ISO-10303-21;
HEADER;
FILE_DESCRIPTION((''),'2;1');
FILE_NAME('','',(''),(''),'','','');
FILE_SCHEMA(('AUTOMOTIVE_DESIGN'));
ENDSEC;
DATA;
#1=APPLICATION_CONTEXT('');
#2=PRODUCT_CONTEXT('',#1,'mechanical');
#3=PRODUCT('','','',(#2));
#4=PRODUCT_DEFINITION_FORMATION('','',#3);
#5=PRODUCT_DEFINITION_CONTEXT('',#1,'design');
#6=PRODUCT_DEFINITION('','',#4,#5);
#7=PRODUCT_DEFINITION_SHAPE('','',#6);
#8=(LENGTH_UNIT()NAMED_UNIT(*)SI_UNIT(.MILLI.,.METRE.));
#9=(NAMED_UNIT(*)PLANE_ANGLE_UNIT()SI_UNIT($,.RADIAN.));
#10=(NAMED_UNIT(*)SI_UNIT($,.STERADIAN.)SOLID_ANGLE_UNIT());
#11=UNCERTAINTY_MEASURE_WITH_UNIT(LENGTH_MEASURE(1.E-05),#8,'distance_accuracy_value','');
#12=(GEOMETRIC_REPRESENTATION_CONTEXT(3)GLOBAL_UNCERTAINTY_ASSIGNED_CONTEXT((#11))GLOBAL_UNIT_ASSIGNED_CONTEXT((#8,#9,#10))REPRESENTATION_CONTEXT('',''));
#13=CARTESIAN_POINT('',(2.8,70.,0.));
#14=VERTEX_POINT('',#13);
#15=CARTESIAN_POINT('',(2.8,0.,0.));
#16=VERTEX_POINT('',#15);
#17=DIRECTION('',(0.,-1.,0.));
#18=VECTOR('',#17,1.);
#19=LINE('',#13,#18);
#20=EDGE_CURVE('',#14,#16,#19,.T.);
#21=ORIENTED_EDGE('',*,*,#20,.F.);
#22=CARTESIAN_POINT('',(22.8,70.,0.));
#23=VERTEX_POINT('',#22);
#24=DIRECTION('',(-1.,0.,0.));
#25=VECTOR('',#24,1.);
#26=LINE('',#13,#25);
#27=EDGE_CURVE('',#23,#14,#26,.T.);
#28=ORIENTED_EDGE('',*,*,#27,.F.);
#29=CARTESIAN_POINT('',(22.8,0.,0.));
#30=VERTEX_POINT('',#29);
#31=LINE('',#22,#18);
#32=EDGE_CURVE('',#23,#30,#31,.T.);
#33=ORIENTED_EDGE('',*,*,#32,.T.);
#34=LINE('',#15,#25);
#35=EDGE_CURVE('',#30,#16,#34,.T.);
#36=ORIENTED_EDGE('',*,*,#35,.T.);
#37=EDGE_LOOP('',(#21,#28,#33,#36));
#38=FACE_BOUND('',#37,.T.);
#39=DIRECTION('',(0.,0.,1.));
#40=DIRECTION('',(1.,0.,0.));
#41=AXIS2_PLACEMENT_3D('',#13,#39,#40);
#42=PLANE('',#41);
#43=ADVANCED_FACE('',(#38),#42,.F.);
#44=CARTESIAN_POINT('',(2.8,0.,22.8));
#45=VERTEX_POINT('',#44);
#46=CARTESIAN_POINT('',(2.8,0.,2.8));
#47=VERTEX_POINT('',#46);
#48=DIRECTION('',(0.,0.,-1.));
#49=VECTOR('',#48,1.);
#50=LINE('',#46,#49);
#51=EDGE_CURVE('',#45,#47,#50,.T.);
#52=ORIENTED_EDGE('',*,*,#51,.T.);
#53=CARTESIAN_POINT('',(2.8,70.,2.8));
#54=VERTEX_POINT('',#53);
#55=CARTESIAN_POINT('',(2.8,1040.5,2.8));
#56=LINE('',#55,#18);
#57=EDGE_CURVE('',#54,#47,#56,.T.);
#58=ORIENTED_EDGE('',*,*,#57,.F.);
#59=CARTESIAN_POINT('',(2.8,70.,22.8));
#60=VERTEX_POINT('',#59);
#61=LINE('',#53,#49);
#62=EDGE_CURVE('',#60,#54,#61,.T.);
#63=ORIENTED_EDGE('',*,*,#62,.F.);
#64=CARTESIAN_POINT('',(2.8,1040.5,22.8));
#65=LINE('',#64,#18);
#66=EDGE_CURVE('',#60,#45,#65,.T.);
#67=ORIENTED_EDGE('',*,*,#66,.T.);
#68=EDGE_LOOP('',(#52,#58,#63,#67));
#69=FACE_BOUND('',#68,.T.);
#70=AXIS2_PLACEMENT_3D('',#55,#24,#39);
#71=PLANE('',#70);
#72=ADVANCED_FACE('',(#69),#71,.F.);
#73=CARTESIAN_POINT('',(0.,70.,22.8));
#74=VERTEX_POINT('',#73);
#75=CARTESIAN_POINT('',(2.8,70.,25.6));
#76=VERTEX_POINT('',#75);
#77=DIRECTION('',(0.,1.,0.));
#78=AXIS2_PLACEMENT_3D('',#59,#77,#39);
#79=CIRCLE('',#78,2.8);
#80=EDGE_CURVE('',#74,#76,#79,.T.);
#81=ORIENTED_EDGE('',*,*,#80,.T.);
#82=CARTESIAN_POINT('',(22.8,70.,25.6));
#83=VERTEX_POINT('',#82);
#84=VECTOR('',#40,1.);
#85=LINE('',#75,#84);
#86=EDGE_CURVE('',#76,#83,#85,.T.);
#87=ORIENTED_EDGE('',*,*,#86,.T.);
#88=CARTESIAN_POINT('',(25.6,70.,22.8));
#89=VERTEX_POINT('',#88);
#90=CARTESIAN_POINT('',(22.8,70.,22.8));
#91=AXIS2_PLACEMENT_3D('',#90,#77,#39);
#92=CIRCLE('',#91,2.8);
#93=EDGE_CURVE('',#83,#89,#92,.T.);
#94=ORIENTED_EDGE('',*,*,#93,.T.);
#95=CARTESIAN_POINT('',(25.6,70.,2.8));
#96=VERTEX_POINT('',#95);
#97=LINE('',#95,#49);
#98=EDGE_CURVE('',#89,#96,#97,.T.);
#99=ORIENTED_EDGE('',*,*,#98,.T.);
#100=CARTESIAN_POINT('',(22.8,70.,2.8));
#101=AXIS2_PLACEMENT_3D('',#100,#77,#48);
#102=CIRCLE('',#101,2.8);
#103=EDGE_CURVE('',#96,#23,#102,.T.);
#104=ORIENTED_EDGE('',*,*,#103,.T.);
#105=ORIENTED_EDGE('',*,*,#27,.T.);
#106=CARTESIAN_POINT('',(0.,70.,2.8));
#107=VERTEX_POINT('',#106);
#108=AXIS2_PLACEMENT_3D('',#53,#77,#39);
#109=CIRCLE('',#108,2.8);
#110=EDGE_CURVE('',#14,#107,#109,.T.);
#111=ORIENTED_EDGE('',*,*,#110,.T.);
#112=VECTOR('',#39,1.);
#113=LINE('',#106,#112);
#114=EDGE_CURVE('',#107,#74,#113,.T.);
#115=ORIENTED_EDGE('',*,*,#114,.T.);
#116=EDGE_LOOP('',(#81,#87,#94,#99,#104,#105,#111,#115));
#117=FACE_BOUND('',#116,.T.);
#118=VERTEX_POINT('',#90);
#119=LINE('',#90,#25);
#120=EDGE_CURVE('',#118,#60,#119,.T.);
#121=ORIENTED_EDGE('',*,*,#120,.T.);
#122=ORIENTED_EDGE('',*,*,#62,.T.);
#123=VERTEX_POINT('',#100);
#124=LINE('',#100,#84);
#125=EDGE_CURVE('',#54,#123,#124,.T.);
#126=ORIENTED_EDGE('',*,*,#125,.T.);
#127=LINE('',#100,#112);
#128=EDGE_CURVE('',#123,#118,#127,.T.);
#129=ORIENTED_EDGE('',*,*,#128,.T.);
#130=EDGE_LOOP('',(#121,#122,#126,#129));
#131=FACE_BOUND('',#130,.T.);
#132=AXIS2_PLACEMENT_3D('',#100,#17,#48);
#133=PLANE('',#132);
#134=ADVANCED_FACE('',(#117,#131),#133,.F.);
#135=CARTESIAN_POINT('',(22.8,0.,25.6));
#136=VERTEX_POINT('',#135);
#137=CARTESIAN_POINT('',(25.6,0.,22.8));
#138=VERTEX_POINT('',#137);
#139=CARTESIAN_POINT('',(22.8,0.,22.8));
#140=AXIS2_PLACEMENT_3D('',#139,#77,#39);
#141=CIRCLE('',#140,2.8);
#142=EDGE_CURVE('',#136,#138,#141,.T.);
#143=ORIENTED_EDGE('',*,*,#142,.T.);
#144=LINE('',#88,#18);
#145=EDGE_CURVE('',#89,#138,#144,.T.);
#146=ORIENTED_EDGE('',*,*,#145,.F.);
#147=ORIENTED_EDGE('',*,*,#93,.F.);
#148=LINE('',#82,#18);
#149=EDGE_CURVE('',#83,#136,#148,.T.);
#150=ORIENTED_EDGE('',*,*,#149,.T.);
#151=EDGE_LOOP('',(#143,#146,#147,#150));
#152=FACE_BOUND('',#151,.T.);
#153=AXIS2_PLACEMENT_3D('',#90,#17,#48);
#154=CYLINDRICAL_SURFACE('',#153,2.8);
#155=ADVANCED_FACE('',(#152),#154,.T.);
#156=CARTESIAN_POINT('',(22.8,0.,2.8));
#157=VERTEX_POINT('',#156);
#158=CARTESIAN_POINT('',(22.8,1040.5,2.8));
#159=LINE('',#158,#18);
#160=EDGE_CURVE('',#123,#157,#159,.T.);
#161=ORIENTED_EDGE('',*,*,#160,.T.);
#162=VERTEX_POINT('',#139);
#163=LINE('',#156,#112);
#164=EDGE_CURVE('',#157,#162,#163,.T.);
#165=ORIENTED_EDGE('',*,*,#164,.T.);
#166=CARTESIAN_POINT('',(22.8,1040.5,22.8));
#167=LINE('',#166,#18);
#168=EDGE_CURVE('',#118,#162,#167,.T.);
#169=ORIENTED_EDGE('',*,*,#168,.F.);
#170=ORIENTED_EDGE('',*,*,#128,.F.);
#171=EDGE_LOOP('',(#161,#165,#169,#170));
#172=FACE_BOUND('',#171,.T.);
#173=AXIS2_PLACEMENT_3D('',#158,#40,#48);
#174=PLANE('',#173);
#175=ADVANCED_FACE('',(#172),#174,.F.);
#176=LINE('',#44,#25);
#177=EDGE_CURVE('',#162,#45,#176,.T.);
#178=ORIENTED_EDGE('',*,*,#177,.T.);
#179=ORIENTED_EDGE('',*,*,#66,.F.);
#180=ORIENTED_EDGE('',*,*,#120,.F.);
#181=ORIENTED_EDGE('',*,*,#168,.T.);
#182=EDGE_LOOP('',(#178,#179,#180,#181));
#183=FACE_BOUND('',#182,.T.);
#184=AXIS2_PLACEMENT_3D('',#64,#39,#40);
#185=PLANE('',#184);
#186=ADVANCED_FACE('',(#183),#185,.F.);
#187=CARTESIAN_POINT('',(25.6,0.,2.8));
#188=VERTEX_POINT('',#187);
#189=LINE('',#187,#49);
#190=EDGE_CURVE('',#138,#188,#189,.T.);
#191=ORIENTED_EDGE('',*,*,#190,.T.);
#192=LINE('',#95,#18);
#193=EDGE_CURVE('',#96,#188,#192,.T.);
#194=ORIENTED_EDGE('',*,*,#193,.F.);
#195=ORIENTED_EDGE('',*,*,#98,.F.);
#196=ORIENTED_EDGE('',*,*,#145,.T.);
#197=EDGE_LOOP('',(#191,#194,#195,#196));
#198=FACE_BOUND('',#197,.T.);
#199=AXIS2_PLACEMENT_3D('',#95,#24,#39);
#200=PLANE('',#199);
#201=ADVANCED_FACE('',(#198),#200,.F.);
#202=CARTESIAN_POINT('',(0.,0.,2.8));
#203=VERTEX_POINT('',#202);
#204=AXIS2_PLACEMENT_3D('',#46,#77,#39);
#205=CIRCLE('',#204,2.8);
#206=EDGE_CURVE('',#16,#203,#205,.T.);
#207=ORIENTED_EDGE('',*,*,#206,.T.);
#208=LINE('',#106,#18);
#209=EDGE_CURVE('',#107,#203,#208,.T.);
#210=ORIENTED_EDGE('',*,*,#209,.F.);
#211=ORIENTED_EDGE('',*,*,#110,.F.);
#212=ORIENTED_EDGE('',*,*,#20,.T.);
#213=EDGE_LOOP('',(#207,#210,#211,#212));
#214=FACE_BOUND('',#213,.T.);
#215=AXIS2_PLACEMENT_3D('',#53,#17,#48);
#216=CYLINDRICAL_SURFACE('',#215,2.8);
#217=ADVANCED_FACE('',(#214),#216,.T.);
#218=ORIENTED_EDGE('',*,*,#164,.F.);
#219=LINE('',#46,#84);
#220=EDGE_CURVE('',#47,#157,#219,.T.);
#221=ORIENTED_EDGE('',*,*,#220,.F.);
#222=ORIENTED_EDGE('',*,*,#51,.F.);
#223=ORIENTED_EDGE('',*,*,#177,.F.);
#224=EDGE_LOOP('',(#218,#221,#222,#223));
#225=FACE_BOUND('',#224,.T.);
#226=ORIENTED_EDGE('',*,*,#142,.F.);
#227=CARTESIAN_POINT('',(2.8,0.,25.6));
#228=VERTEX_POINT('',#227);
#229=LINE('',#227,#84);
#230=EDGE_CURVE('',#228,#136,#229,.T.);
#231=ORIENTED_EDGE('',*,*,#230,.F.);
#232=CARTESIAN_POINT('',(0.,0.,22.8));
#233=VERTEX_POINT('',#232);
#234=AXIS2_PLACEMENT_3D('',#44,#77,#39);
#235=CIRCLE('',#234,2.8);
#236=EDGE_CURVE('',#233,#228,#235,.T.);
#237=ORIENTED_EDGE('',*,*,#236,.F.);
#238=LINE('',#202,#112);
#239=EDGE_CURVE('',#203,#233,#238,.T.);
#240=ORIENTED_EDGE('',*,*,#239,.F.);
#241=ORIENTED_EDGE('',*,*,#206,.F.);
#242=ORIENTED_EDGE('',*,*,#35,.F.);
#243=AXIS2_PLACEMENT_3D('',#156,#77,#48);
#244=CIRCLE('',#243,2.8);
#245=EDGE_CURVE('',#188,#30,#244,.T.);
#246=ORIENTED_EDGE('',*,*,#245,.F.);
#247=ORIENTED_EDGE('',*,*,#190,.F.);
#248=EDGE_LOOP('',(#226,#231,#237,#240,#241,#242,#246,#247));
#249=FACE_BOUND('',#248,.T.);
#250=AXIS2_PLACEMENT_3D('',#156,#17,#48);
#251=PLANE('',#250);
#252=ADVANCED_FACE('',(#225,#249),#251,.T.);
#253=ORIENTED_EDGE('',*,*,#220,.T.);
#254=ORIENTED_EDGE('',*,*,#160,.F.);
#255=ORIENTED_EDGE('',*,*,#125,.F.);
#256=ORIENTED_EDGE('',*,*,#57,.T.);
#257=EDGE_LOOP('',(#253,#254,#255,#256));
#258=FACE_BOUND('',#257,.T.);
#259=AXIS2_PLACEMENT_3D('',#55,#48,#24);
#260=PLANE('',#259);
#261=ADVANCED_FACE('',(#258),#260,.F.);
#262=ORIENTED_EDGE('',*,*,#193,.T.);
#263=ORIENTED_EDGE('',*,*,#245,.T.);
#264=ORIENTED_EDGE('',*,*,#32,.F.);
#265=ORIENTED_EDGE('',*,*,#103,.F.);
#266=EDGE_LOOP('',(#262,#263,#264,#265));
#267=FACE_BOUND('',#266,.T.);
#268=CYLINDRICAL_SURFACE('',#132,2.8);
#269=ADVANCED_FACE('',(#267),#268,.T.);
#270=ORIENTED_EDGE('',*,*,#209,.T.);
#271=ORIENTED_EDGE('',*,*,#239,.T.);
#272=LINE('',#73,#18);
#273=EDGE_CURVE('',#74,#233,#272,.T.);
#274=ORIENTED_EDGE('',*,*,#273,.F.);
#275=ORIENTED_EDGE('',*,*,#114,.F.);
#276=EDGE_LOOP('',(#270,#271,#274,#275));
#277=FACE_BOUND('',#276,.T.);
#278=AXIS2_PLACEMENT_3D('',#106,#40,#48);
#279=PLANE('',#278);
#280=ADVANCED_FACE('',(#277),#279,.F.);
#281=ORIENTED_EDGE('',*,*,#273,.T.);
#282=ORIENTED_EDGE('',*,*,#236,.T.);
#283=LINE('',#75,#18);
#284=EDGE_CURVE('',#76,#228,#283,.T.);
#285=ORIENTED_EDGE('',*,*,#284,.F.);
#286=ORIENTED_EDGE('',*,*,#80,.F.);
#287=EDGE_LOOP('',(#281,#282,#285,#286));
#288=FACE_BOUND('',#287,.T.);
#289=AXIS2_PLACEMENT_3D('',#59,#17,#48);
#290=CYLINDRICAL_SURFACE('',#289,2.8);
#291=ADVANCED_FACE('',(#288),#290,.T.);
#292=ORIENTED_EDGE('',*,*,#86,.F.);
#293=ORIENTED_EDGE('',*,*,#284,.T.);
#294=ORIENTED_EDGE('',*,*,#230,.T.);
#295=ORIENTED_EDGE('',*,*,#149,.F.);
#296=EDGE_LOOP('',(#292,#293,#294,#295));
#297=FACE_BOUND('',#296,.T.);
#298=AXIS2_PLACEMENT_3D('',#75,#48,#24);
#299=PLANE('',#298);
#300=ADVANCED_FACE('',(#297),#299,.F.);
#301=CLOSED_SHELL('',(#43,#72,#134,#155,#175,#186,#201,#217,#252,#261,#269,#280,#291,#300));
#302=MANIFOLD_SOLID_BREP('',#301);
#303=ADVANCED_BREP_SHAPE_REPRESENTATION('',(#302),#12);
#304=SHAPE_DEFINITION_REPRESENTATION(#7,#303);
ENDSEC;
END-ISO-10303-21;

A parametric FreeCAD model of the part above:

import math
import FreeCAD as App
import Part
import Sketcher

V = App.Vector
Q = App.Units.Quantity


def add_polygon(sketch, points):
    """Adds a closed chain of lines whose ends are joined by coincident constraints."""
    first, n = sketch.GeometryCount, len(points)
    for a, b in zip(points, points[1:] + points[:1]):
        sketch.addGeometry(Part.LineSegment(App.Vector(*a, 0), App.Vector(*b, 0)), False)
    for i in range(n):
        sketch.addConstraint(Sketcher.Constraint("Coincident", first + i, 2, first + (i + 1) % n, 1))

doc = App.newDocument("Part")
params = doc.addObject("Spreadsheet::Sheet", "Params")
for row, (alias, value) in enumerate([
    ("sketch1_radius", "2.8 mm"),
    ("sketch1_width", "20 mm"),
    ("pad1_length", "70 mm"),
    ("sketch2_width", "20 mm"),
    ("pocket1_length", "1040.5 mm"),
], start=1):
    params.set(f"A{row}", alias)
    params.set(f"B{row}", "=" + value)
    params.setAlias(f"B{row}", alias)

body = doc.addObject("PartDesign::Body", "Body")

# Sketch on XZ plane
sketch1 = doc.addObject("Sketcher::SketchObject", "Sketch")
body.addObject(sketch1)
sketch1.AttachmentSupport = (doc.XZ_Plane, [""])
sketch1.MapMode = "FlatFace"
sketch1.addGeometry([
    Part.LineSegment(V(22.8, 0, 0), V(2.8, 0, 0)),  # 0
    Part.ArcOfCircle(Part.Circle(V(2.8, 2.8, 0), V(0, 0, 1), 2.8), math.radians(-180), math.radians(-90)),  # 1
    Part.LineSegment(V(0, 2.8, 0), V(0, 22.8, 0)),  # 2
    Part.ArcOfCircle(Part.Circle(V(2.8, 22.8, 0), V(0, 0, 1), 2.8), math.radians(90), math.radians(180)),  # 3
    Part.LineSegment(V(2.8, 25.6, 0), V(22.8, 25.6, 0)),  # 4
    Part.ArcOfCircle(Part.Circle(V(22.8, 22.8, 0), V(0, 0, 1), 2.8), math.radians(0), math.radians(90)),  # 5
    Part.LineSegment(V(25.6, 22.8, 0), V(25.6, 2.8, 0)),  # 6
    Part.ArcOfCircle(Part.Circle(V(22.8, 2.8, 0), V(0, 0, 1), 2.8), math.radians(-90), math.radians(0)),  # 7
], False)
sketch1.addConstraint([
    Sketcher.Constraint("Tangent", 0, 2, 1, 2),
    Sketcher.Constraint("Tangent", 1, 1, 2, 1),
    Sketcher.Constraint("Tangent", 2, 2, 3, 2),
    Sketcher.Constraint("Tangent", 3, 1, 4, 1),
    Sketcher.Constraint("Tangent", 4, 2, 5, 2),
    Sketcher.Constraint("Tangent", 5, 1, 6, 1),
    Sketcher.Constraint("Tangent", 6, 2, 7, 2),
    Sketcher.Constraint("Tangent", 7, 1, 0, 1),
    Sketcher.Constraint("Horizontal", 0),
    Sketcher.Constraint("Vertical", 2),
    Sketcher.Constraint("Horizontal", 4),
    Sketcher.Constraint("Vertical", 6),
    Sketcher.Constraint("Equal", 1, 3),
    Sketcher.Constraint("Equal", 3, 5),
    Sketcher.Constraint("Equal", 5, 7),
    Sketcher.Constraint("PointOnObject", 0, 2, -1),
    Sketcher.Constraint("PointOnObject", 1, 1, -2),
    Sketcher.Constraint("Equal", 4, 2),
    Sketcher.Constraint("Radius", 1, Q("2.8 mm")),
    Sketcher.Constraint("DistanceX", 0, 2, 0, 1, Q("20 mm")),
])
sketch1.setExpression("Constraints[18]", "Params.sketch1_radius")
sketch1.setExpression("Constraints[19]", "Params.sketch1_width")
pad1 = doc.addObject("PartDesign::Pad", "Pad")
body.addObject(pad1)
pad1.Profile = sketch1
pad1.setExpression("Length", "Params.pad1_length")
pad1.Reversed = True

# Sketch on XZ plane
sketch2 = doc.addObject("Sketcher::SketchObject", "Sketch001")
body.addObject(sketch2)
sketch2.AttachmentSupport = (doc.XZ_Plane, [""])
sketch2.MapMode = "FlatFace"
add_polygon(sketch2, [(23, 3), (23, 23), (3, 23), (3, 3)])  # lines 0-3
sketch2.addConstraint([
    Sketcher.Constraint("Vertical", 0),
    Sketcher.Constraint("Horizontal", 1),
    Sketcher.Constraint("Vertical", 2),
    Sketcher.Constraint("Horizontal", 3),
    Sketcher.Constraint("Equal", 3, 0),
    Sketcher.Constraint("DistanceX", 1, 2, 1, 1, Q("20 mm")),
    Sketcher.Constraint("DistanceX", -1, 1, 0, 2, Q("22.8 mm")),
    Sketcher.Constraint("DistanceY", -1, 1, 0, 2, Q("22.8 mm")),
])
sketch2.setExpression("Constraints[9]", "Params.sketch2_width")
pocket1 = doc.addObject("PartDesign::Pocket", "Pocket")
body.addObject(pocket1)
pocket1.Profile = sketch2
pocket1.setExpression("Length", "Params.pocket1_length")

doc.recompute()
